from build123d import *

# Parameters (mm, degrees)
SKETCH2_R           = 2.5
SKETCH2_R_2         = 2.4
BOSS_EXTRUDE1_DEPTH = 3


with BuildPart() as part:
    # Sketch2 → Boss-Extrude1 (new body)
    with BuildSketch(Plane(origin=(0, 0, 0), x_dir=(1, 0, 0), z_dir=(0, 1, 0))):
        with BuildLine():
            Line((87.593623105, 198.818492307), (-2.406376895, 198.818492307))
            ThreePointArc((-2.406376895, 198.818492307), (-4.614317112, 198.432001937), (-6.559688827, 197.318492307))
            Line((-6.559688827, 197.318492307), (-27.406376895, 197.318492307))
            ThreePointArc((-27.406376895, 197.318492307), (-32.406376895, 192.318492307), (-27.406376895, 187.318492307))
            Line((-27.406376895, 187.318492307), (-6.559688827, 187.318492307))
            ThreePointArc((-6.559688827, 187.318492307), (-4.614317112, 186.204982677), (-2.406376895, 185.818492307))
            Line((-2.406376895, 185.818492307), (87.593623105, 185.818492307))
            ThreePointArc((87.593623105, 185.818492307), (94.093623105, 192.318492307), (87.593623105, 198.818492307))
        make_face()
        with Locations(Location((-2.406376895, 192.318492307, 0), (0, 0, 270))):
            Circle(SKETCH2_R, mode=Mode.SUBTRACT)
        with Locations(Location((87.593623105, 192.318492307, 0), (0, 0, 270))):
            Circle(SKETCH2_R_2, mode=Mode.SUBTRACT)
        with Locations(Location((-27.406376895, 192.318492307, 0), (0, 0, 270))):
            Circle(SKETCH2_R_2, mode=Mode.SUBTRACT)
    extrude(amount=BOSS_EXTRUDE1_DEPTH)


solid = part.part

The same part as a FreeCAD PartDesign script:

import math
import FreeCAD as App
import Part
import Sketcher
Q = App.Units.Quantity

doc = App.newDocument("Part")
body = doc.addObject("PartDesign::Body", "Body")

sketch1 = body.newObject("Sketcher::SketchObject", "Sketch")
sketch1.AttachmentSupport = (doc.getObject("XZ_Plane"), [""])
sketch1.MapMode = "FlatFace"
sketch1.addGeometry(Part.LineSegment(App.Vector(87.6, -198.8, 0), App.Vector(-2.4, -198.8, 0)), False)
sketch1.addGeometry(Part.ArcOfCircle(Part.Circle(App.Vector(-2.4, -192.3, 0), App.Vector(0, 0, 1), 6.5), math.radians(-130), math.radians(-90)), False)
sketch1.addGeometry(Part.LineSegment(App.Vector(-6.6, -197.3, 0), App.Vector(-27.4, -197.3, 0)), False)
sketch1.addGeometry(Part.ArcOfCircle(Part.Circle(App.Vector(-27.4, -192.3, 0), App.Vector(0, 0, 1), 5), math.radians(90), math.radians(270)), False)
sketch1.addGeometry(Part.LineSegment(App.Vector(-27.4, -187.3, 0), App.Vector(-6.6, -187.3, 0)), False)
sketch1.addGeometry(Part.ArcOfCircle(Part.Circle(App.Vector(-2.4, -192.3, 0), App.Vector(0, 0, 1), 6.5), math.radians(90), math.radians(130)), False)
sketch1.addGeometry(Part.LineSegment(App.Vector(-2.4, -185.8, 0), App.Vector(87.6, -185.8, 0)), False)
sketch1.addGeometry(Part.ArcOfCircle(Part.Circle(App.Vector(87.6, -192.3, 0), App.Vector(0, 0, 1), 6.5), math.radians(-90), math.radians(90)), False)
sketch1.addGeometry(Part.Circle(App.Vector(-27.4, -192.3, 0), App.Vector(0, 0, 1), 2.4), False)
sketch1.addGeometry(Part.Circle(App.Vector(-2.4, -192.3, 0), App.Vector(0, 0, 1), 2.5), False)
sketch1.addGeometry(Part.Circle(App.Vector(87.6, -192.3, 0), App.Vector(0, 0, 1), 2.4), False)
sketch1.addConstraint(Sketcher.Constraint("Tangent", 0, 2, 1, 2))
sketch1.addConstraint(Sketcher.Constraint("Coincident", 1, 1, 2, 1))
sketch1.addConstraint(Sketcher.Constraint("Tangent", 2, 2, 3, 2))
sketch1.addConstraint(Sketcher.Constraint("Tangent", 3, 1, 4, 1))
sketch1.addConstraint(Sketcher.Constraint("Coincident", 4, 2, 5, 2))
sketch1.addConstraint(Sketcher.Constraint("Tangent", 5, 1, 6, 1))
sketch1.addConstraint(Sketcher.Constraint("Tangent", 6, 2, 7, 2))
sketch1.addConstraint(Sketcher.Constraint("Tangent", 7, 1, 0, 1))
sketch1.addConstraint(Sketcher.Constraint("Horizontal", 0))
sketch1.addConstraint(Sketcher.Constraint("Horizontal", 2))
sketch1.addConstraint(Sketcher.Constraint("Horizontal", 4))
sketch1.addConstraint(Sketcher.Constraint("Horizontal", 6))
sketch1.addConstraint(Sketcher.Constraint("Coincident", 5, 3, 1, 3))
sketch1.addConstraint(Sketcher.Constraint("Coincident", 8, 3, 3, 3))
sketch1.addConstraint(Sketcher.Constraint("Coincident", 9, 3, 1, 3))
sketch1.addConstraint(Sketcher.Constraint("Coincident", 10, 3, 7, 3))
sketch1.addConstraint(Sketcher.Constraint("Equal", 1, 5))
sketch1.addConstraint(Sketcher.Constraint("Equal", 8, 10))
sketch1.addConstraint(Sketcher.Constraint("Horizontal", 1, 3, 3, 3))
sketch1.addConstraint(Sketcher.Constraint("Diameter", 9, Q("5 mm")))
sketch1.addConstraint(Sketcher.Constraint("Radius", 3, Q("5 mm")))
sketch1.addConstraint(Sketcher.Constraint("Diameter", 8, Q("4.8 mm")))
sketch1.addConstraint(Sketcher.Constraint("Radius", 1, Q("6.5 mm")))
sketch1.addConstraint(Sketcher.Constraint("DistanceX", 0, 2, 0, 1, Q("90 mm")))
sketch1.addConstraint(Sketcher.Constraint("DistanceX", 3, 3, 1, 3, Q("25 mm")))
sketch1.addConstraint(Sketcher.Constraint("DistanceX", 1, 1, -1, 1, Q("6.559689 mm")))
sketch1.addConstraint(Sketcher.Constraint("DistanceY", 1, 3, -1, 1, Q("192.318492 mm")))
pad1 = body.newObject("PartDesign::Pad", "Pad")
pad1.Profile = sketch1
pad1.Length = 3
pad1.Reversed = True

doc.recompute()
